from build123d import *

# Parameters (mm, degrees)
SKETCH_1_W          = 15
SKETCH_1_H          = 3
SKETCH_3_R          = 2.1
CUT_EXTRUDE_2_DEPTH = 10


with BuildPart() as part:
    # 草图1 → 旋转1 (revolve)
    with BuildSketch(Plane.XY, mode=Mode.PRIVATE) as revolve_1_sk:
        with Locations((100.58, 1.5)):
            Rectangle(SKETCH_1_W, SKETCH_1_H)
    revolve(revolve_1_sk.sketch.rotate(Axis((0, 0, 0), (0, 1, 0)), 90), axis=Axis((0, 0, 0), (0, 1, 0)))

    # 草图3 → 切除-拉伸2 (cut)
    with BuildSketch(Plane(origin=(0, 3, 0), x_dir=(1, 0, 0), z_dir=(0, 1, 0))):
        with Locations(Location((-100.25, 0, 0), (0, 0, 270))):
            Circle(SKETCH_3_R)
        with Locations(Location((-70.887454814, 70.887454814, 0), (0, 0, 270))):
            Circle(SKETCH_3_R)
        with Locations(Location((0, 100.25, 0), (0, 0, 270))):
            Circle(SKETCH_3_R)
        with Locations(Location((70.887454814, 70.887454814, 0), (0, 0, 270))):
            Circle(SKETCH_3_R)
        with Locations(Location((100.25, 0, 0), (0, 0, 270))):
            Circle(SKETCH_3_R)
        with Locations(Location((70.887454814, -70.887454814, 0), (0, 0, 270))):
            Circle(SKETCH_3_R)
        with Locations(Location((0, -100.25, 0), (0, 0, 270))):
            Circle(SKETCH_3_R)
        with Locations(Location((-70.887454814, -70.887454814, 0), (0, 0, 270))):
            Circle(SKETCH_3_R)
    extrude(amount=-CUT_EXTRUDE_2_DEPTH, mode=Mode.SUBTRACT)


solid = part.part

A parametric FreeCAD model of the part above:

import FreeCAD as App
import Part
import Sketcher

V = App.Vector

doc = App.newDocument("Part")
body = doc.addObject("PartDesign::Body", "Body")

sketch1 = doc.addObject("Sketcher::SketchObject", "Sketch")
body.addObject(sketch1)
sketch1.AttachmentSupport = (doc.XY_Plane, [""])
sketch1.MapMode = "FlatFace"
sketch1.addGeometry([
    Part.LineSegment(V(93.08, 3, 0), V(93.08, 0, 0)),
    Part.LineSegment(V(93.08, 0, 0), V(108.08, 0, 0)),
    Part.LineSegment(V(108.08, 0, 0), V(108.08, 3, 0)),
    Part.LineSegment(V(108.08, 3, 0), V(93.08, 3, 0)),
], False)
sketch1.addConstraint([
    Sketcher.Constraint("Coincident", 0, 2, 1, 1),
    Sketcher.Constraint("Coincident", 1, 2, 2, 1),
    Sketcher.Constraint("Coincident", 2, 2, 3, 1),
    Sketcher.Constraint("Coincident", 3, 2, 0, 1),
    Sketcher.Constraint("Vertical", 0),
    Sketcher.Constraint("Horizontal", 1),
    Sketcher.Constraint("Vertical", 2),
    Sketcher.Constraint("Horizontal", 3),
    Sketcher.Constraint("PointOnObject", 0, 2, -1),
    Sketcher.Constraint("DistanceX", 1, 1, 1, 2, 15.0),
    Sketcher.Constraint("DistanceY", 0, 2, 0, 1, 3.0),
    Sketcher.Constraint("DistanceX", -1, 1, 0, 2, 93.08),
])
revolution = doc.addObject("PartDesign::Revolution", "Revolution")
body.addObject(revolution)
revolution.Profile = sketch1
revolution.ReferenceAxis = (sketch1, ["V_Axis"])
revolution.Angle = 360

sketch2 = doc.addObject("Sketcher::SketchObject", "Sketch001")
body.addObject(sketch2)
sketch2.AttachmentSupport = (doc.XZ_Plane, [""])
sketch2.MapMode = "FlatFace"
sketch2.AttachmentOffset = App.Placement(V(0, 0, -3), App.Rotation())
sketch2.addGeometry([
    Part.Circle(V(-100.25, 0, 0), V(0, 0, 1), 2.1),
    Part.Circle(V(-70.887455, -70.887455, 0), V(0, 0, 1), 2.1),
    Part.Circle(V(0, -100.25, 0), V(0, 0, 1), 2.1),
    Part.Circle(V(70.887455, -70.887455, 0), V(0, 0, 1), 2.1),
    Part.Circle(V(100.25, 0, 0), V(0, 0, 1), 2.1),
    Part.Circle(V(70.887455, 70.887455, 0), V(0, 0, 1), 2.1),
    Part.Circle(V(0, 100.25, 0), V(0, 0, 1), 2.1),
    Part.Circle(V(-70.887455, 70.887455, 0), V(0, 0, 1), 2.1),
], False)
sketch2.addConstraint([
    Sketcher.Constraint("Equal", 0, 1),
    Sketcher.Constraint("Equal", 1, 2),
    Sketcher.Constraint("Equal", 2, 3),
    Sketcher.Constraint("Equal", 3, 4),
    Sketcher.Constraint("Equal", 4, 5),
    Sketcher.Constraint("Equal", 5, 6),
    Sketcher.Constraint("Equal", 6, 7),
    Sketcher.Constraint("Symmetric", 0, 3, 4, 3, -1, 1),
    Sketcher.Constraint("Symmetric", 1, 3, 5, 3, -1, 1),
    Sketcher.Constraint("Symmetric", 2, 3, 6, 3, -1, 1),
    Sketcher.Constraint("Symmetric", 3, 3, 7, 3, -1, 1),
    Sketcher.Constraint("Symmetric", 1, 3, 3, 3, -2),
    Sketcher.Constraint("PointOnObject", 0, 3, -1),
    Sketcher.Constraint("PointOnObject", 2, 3, -2),
    Sketcher.Constraint("Diameter", 0, 4.2),
    Sketcher.Constraint("DistanceX", 0, 3, 4, 3, 200.5),
    Sketcher.Constraint("DistanceY", 2, 3, -1, 1, 100.25),
    Sketcher.Constraint("DistanceX", 1, 3, 3, 3, 141.77491),
    Sketcher.Constraint("DistanceY", 3, 3, 5, 3, 141.77491),
])
pocket1 = doc.addObject("PartDesign::Pocket", "Pocket")
body.addObject(pocket1)
pocket1.Profile = sketch2
pocket1.Length = 10
pocket1.Reversed = True

doc.recompute()
